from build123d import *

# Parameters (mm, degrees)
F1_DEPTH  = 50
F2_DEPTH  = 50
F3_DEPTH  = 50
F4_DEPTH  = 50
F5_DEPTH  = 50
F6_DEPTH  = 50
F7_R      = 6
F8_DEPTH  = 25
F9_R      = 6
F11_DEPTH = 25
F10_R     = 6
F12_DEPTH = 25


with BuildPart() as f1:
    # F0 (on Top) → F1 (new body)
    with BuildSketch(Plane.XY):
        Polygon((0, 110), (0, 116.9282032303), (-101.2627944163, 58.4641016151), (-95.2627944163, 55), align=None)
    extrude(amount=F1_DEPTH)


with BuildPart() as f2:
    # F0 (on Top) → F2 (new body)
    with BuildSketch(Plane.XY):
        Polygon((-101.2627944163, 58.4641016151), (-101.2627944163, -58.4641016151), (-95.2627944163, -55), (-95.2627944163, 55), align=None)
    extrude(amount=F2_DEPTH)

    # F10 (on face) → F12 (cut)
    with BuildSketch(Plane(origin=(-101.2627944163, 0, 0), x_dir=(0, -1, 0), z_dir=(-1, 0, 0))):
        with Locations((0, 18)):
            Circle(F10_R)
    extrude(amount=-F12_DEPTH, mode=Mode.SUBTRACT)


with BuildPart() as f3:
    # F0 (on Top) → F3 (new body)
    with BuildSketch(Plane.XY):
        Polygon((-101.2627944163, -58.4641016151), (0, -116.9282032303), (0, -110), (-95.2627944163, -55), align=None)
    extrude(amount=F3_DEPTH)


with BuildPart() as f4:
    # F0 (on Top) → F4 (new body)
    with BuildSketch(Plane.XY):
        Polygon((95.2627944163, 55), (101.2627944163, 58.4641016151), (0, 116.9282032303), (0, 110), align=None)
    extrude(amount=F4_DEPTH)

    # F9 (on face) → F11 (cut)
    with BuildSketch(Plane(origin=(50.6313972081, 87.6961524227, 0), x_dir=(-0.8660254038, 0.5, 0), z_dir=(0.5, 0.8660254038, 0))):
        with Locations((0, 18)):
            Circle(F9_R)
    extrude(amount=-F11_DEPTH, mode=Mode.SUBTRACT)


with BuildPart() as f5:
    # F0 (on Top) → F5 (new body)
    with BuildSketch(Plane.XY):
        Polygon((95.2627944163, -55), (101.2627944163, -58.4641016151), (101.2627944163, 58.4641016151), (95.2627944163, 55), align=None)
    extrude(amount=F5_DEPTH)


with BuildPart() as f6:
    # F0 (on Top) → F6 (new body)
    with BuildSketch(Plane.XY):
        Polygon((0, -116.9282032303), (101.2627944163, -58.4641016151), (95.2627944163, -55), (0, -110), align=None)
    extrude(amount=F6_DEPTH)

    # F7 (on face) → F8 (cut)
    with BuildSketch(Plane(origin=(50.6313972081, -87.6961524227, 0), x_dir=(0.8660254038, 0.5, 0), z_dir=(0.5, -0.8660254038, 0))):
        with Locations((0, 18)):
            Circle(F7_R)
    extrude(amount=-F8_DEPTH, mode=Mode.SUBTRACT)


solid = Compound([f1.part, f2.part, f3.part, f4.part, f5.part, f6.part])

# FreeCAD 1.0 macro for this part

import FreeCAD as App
import Part
import Sketcher
from FreeCAD import Vector
Q = App.Units.Quantity

doc = App.newDocument("Part")
params = doc.addObject("Spreadsheet::Sheet", "Params")
for row, (alias, value) in enumerate([
    ("sketch1_length", "110 mm"),
    ("pad1_length", "50 mm"),
    ("sketch2_height", "110 mm"),
    ("pad2_length", "50 mm"),
    ("sketch3_diameter", "12 mm"),
    ("pocket1_length", "25 mm"),
    ("sketch4_length", "110 mm"),
    ("pad3_length", "50 mm"),
    ("sketch5_length", "110 mm"),
    ("pad4_length", "50 mm"),
    ("sketch6_diameter", "12 mm"),
    ("pocket2_length", "25 mm"),
    ("sketch7_height", "110 mm"),
    ("pad5_length", "50 mm"),
    ("sketch8_length", "110 mm"),
    ("pad6_length", "50 mm"),
    ("sketch9_diameter", "12 mm"),
    ("pocket3_length", "25 mm"),
], start=1):
    params.set(f"A{row}", alias)
    params.set(f"B{row}", "=" + value)
    params.setAlias(f"B{row}", alias)

body = doc.addObject("PartDesign::Body", "Body")

# Sketch on XY plane
sketch1 = body.newObject("Sketcher::SketchObject", "Sketch")
sketch1.AttachmentSupport = (doc.getObject("XY_Plane"), [""])
sketch1.MapMode = "FlatFace"
sketch1.addGeometry(Part.LineSegment(Vector(0, 110, 0), Vector(0, 117, 0)), False)
sketch1.addGeometry(Part.LineSegment(Vector(0, 117, 0), Vector(-101, 58, 0)), False)
sketch1.addGeometry(Part.LineSegment(Vector(-101, 58, 0), Vector(-95, 55, 0)), False)
sketch1.addGeometry(Part.LineSegment(Vector(-95, 55, 0), Vector(0, 110, 0)), False)
sketch1.addConstraint(Sketcher.Constraint("Coincident", 0, 2, 1, 1))
sketch1.addConstraint(Sketcher.Constraint("Coincident", 1, 2, 2, 1))
sketch1.addConstraint(Sketcher.Constraint("Coincident", 2, 2, 3, 1))
sketch1.addConstraint(Sketcher.Constraint("Coincident", 3, 2, 0, 1))
sketch1.addConstraint(Sketcher.Constraint("Vertical", 0))
sketch1.addConstraint(Sketcher.Constraint("PointOnObject", 0, 2, -2))
sketch1.addConstraint(Sketcher.Constraint("Parallel", 1, 3))
sketch1.addConstraint(Sketcher.Constraint("Angle", 1, Q("-150 deg")))
sketch1.addConstraint(Sketcher.Constraint("Angle", 2, Q("-30 deg")))
sketch1.addConstraint(Sketcher.Constraint("Distance", 3, Q("110 mm")))
sketch1.addConstraint(Sketcher.Constraint("DistanceY", -1, 1, 2, 2, Q("55 mm")))
sketch1.addConstraint(Sketcher.Constraint("DistanceX", 1, 2, 2, 2, Q("6 mm")))
sketch1.setExpression("Constraints[9]", "Params.sketch1_length")
pad1 = body.newObject("PartDesign::Pad", "Pad")
pad1.Profile = sketch1
pad1.setExpression("Length", "Params.pad1_length")
body2 = doc.addObject("PartDesign::Body", "Body001")

# Sketch on XY plane
sketch2 = body2.newObject("Sketcher::SketchObject", "Sketch001")
sketch2.AttachmentSupport = (doc.getObject("XY_Plane001"), [""])
sketch2.MapMode = "FlatFace"
sketch2.addGeometry(Part.LineSegment(Vector(-101, 58, 0), Vector(-101, -58, 0)), False)
sketch2.addGeometry(Part.LineSegment(Vector(-101, -58, 0), Vector(-95, -55, 0)), False)
sketch2.addGeometry(Part.LineSegment(Vector(-95, -55, 0), Vector(-95, 55, 0)), False)
sketch2.addGeometry(Part.LineSegment(Vector(-95, 55, 0), Vector(-101, 58, 0)), False)
sketch2.addConstraint(Sketcher.Constraint("Coincident", 0, 2, 1, 1))
sketch2.addConstraint(Sketcher.Constraint("Coincident", 1, 2, 2, 1))
sketch2.addConstraint(Sketcher.Constraint("Coincident", 2, 2, 3, 1))
sketch2.addConstraint(Sketcher.Constraint("Coincident", 3, 2, 0, 1))
sketch2.addConstraint(Sketcher.Constraint("Vertical", 0))
sketch2.addConstraint(Sketcher.Constraint("Vertical", 2))
sketch2.addConstraint(Sketcher.Constraint("Equal", 1, 3))
sketch2.addConstraint(Sketcher.Constraint("DistanceY", 2, 1, 2, 2, Q("110 mm")))
sketch2.addConstraint(Sketcher.Constraint("Angle", 1, Q("30 deg")))
sketch2.addConstraint(Sketcher.Constraint("DistanceY", 1, 2, -1, 1, Q("55 mm")))
sketch2.addConstraint(Sketcher.Constraint("DistanceX", 0, 2, 1, 2, Q("6 mm")))
sketch2.addConstraint(Sketcher.Constraint("DistanceX", 0, 2, -1, 1, Q("101.262794 mm")))
sketch2.setExpression("Constraints[7]", "Params.sketch2_height")
pad2 = body2.newObject("PartDesign::Pad", "Pad001")
pad2.Profile = sketch2
pad2.setExpression("Length", "Params.pad2_length")

# Sketch on YZ plane
sketch3 = body2.newObject("Sketcher::SketchObject", "Sketch002")
sketch3.AttachmentSupport = (doc.getObject("YZ_Plane001"), [""])
sketch3.MapMode = "FlatFace"
sketch3.AttachmentOffset = App.Placement(Vector(0, 0, -101.262794), App.Rotation())
sketch3.addGeometry(Part.Circle(Vector(0, 18, 0), Vector(0, 0, 1), 6), False)
sketch3.addConstraint(Sketcher.Constraint("PointOnObject", 0, 3, -2))
sketch3.addConstraint(Sketcher.Constraint("Diameter", 0, Q("12 mm")))
sketch3.addConstraint(Sketcher.Constraint("DistanceY", -1, 1, 0, 3, Q("18 mm")))
sketch3.setExpression("Constraints[1]", "Params.sketch3_diameter")
pocket1 = body2.newObject("PartDesign::Pocket", "Pocket")
pocket1.Profile = sketch3
pocket1.setExpression("Length", "Params.pocket1_length")
pocket1.Reversed = True
body3 = doc.addObject("PartDesign::Body", "Body002")

# Sketch on XY plane
sketch4 = body3.newObject("Sketcher::SketchObject", "Sketch003")
sketch4.AttachmentSupport = (doc.getObject("XY_Plane002"), [""])
sketch4.MapMode = "FlatFace"
sketch4.addGeometry(Part.LineSegment(Vector(-101, -58, 0), Vector(0, -117, 0)), False)
sketch4.addGeometry(Part.LineSegment(Vector(0, -117, 0), Vector(0, -110, 0)), False)
sketch4.addGeometry(Part.LineSegment(Vector(0, -110, 0), Vector(-95, -55, 0)), False)
sketch4.addGeometry(Part.LineSegment(Vector(-95, -55, 0), Vector(-101, -58, 0)), False)
sketch4.addConstraint(Sketcher.Constraint("Coincident", 0, 2, 1, 1))
sketch4.addConstraint(Sketcher.Constraint("Coincident", 1, 2, 2, 1))
sketch4.addConstraint(Sketcher.Constraint("Coincident", 2, 2, 3, 1))
sketch4.addConstraint(Sketcher.Constraint("Coincident", 3, 2, 0, 1))
sketch4.addConstraint(Sketcher.Constraint("Vertical", 1))
sketch4.addConstraint(Sketcher.Constraint("PointOnObject", 0, 2, -2))
sketch4.addConstraint(Sketcher.Constraint("Parallel", 0, 2))
sketch4.addConstraint(Sketcher.Constraint("Angle", 0, Q("-30 deg")))
sketch4.addConstraint(Sketcher.Constraint("Angle", 3, Q("-150 deg")))
sketch4.addConstraint(Sketcher.Constraint("Distance", 2, Q("110 mm")))
sketch4.addConstraint(Sketcher.Constraint("DistanceY", 1, 2, -1, 1, Q("110 mm")))
sketch4.addConstraint(Sketcher.Constraint("DistanceX", 3, 2, 2, 2, Q("6 mm")))
sketch4.setExpression("Constraints[9]", "Params.sketch4_length")
pad3 = body3.newObject("PartDesign::Pad", "Pad002")
pad3.Profile = sketch4
pad3.setExpression("Length", "Params.pad3_length")
body4 = doc.addObject("PartDesign::Body", "Body003")

# Sketch on XY plane
sketch5 = body4.newObject("Sketcher::SketchObject", "Sketch004")
sketch5.AttachmentSupport = (doc.getObject("XY_Plane003"), [""])
sketch5.MapMode = "FlatFace"
sketch5.addGeometry(Part.LineSegment(Vector(95, 55, 0), Vector(101, 58, 0)), False)
sketch5.addGeometry(Part.LineSegment(Vector(101, 58, 0), Vector(0, 117, 0)), False)
sketch5.addGeometry(Part.LineSegment(Vector(0, 117, 0), Vector(0, 110, 0)), False)
sketch5.addGeometry(Part.LineSegment(Vector(0, 110, 0), Vector(95, 55, 0)), False)
sketch5.addConstraint(Sketcher.Constraint("Coincident", 0, 2, 1, 1))
sketch5.addConstraint(Sketcher.Constraint("Coincident", 1, 2, 2, 1))
sketch5.addConstraint(Sketcher.Constraint("Coincident", 2, 2, 3, 1))
sketch5.addConstraint(Sketcher.Constraint("Coincident", 3, 2, 0, 1))
sketch5.addConstraint(Sketcher.Constraint("Vertical", 2))
sketch5.addConstraint(Sketcher.Constraint("PointOnObject", 1, 2, -2))
sketch5.addConstraint(Sketcher.Constraint("Parallel", 1, 3))
sketch5.addConstraint(Sketcher.Constraint("Angle", 0, Q("30 deg")))
sketch5.addConstraint(Sketcher.Constraint("Angle", 1, Q("150 deg")))
sketch5.addConstraint(Sketcher.Constraint("Distance", 3, Q("110 mm")))
sketch5.addConstraint(Sketcher.Constraint("DistanceY", -1, 1, 2, 2, Q("110 mm")))
sketch5.addConstraint(Sketcher.Constraint("DistanceX", 3, 2, 0, 2, Q("6 mm")))
sketch5.setExpression("Constraints[9]", "Params.sketch5_length")
pad4 = body4.newObject("PartDesign::Pad", "Pad003")
pad4.Profile = sketch5
pad4.setExpression("Length", "Params.pad4_length")

# Sketch on an angled plane
sketch6 = body4.newObject("Sketcher::SketchObject", "Sketch005")
sketch6.Placement = App.Placement(Vector(50.631397, 87.696152, 0), App.Rotation(Vector(-0.866025404, 0.5, 0), Vector(0, 0, 1), Vector(0.5, 0.866025404, 0), "ZXY"))
sketch6.addGeometry(Part.Circle(Vector(0, 18, 0), Vector(0, 0, 1), 6), False)
sketch6.addConstraint(Sketcher.Constraint("PointOnObject", 0, 3, -2))
sketch6.addConstraint(Sketcher.Constraint("Diameter", 0, Q("12 mm")))
sketch6.addConstraint(Sketcher.Constraint("DistanceY", -1, 1, 0, 3, Q("18 mm")))
sketch6.setExpression("Constraints[1]", "Params.sketch6_diameter")
pocket2 = body4.newObject("PartDesign::Pocket", "Pocket001")
pocket2.Profile = sketch6
pocket2.setExpression("Length", "Params.pocket2_length")
body5 = doc.addObject("PartDesign::Body", "Body004")

# Sketch on XY plane
sketch7 = body5.newObject("Sketcher::SketchObject", "Sketch006")
sketch7.AttachmentSupport = (doc.getObject("XY_Plane004"), [""])
sketch7.MapMode = "FlatFace"
sketch7.addGeometry(Part.LineSegment(Vector(95, -55, 0), Vector(101, -58, 0)), False)
sketch7.addGeometry(Part.LineSegment(Vector(101, -58, 0), Vector(101, 58, 0)), False)
sketch7.addGeometry(Part.LineSegment(Vector(101, 58, 0), Vector(95, 55, 0)), False)
sketch7.addGeometry(Part.LineSegment(Vector(95, 55, 0), Vector(95, -55, 0)), False)
sketch7.addConstraint(Sketcher.Constraint("Coincident", 0, 2, 1, 1))
sketch7.addConstraint(Sketcher.Constraint("Coincident", 1, 2, 2, 1))
sketch7.addConstraint(Sketcher.Constraint("Coincident", 2, 2, 3, 1))
sketch7.addConstraint(Sketcher.Constraint("Coincident", 3, 2, 0, 1))
sketch7.addConstraint(Sketcher.Constraint("Vertical", 1))
sketch7.addConstraint(Sketcher.Constraint("Vertical", 3))
sketch7.addConstraint(Sketcher.Constraint("Equal", 0, 2))
sketch7.addConstraint(Sketcher.Constraint("DistanceY", 3, 2, 3, 1, Q("110 mm")))
sketch7.addConstraint(Sketcher.Constraint("Angle", 0, Q("-30 deg")))
sketch7.addConstraint(Sketcher.Constraint("DistanceY", -1, 1, 2, 2, Q("55 mm")))
sketch7.addConstraint(Sketcher.Constraint("DistanceX", 2, 2, 1, 2, Q("6 mm")))
sketch7.addConstraint(Sketcher.Constraint("DistanceX", -1, 1, 0, 2, Q("101.262794 mm")))
sketch7.setExpression("Constraints[7]", "Params.sketch7_height")
pad5 = body5.newObject("PartDesign::Pad", "Pad004")
pad5.Profile = sketch7
pad5.setExpression("Length", "Params.pad5_length")
body6 = doc.addObject("PartDesign::Body", "Body005")

# Sketch on XY plane
sketch8 = body6.newObject("Sketcher::SketchObject", "Sketch007")
sketch8.AttachmentSupport = (doc.getObject("XY_Plane005"), [""])
sketch8.MapMode = "FlatFace"
sketch8.addGeometry(Part.LineSegment(Vector(0, -117, 0), Vector(101, -58, 0)), False)
sketch8.addGeometry(Part.LineSegment(Vector(101, -58, 0), Vector(95, -55, 0)), False)
sketch8.addGeometry(Part.LineSegment(Vector(95, -55, 0), Vector(0, -110, 0)), False)
sketch8.addGeometry(Part.LineSegment(Vector(0, -110, 0), Vector(0, -117, 0)), False)
sketch8.addConstraint(Sketcher.Constraint("Coincident", 0, 2, 1, 1))
sketch8.addConstraint(Sketcher.Constraint("Coincident", 1, 2, 2, 1))
sketch8.addConstraint(Sketcher.Constraint("Coincident", 2, 2, 3, 1))
sketch8.addConstraint(Sketcher.Constraint("Coincident", 3, 2, 0, 1))
sketch8.addConstraint(Sketcher.Constraint("Vertical", 3))
sketch8.addConstraint(Sketcher.Constraint("PointOnObject", 2, 2, -2))
sketch8.addConstraint(Sketcher.Constraint("Parallel", 0, 2))
sketch8.addConstraint(Sketcher.Constraint("Angle", 0, Q("30 deg")))
sketch8.addConstraint(Sketcher.Constraint("Angle", 1, Q("150 deg")))
sketch8.addConstraint(Sketcher.Constraint("Distance", 2, Q("110 mm")))
sketch8.addConstraint(Sketcher.Constraint("DistanceY", 1, 2, -1, 1, Q("55 mm")))
sketch8.addConstraint(Sketcher.Constraint("DistanceX", 1, 2, 0, 2, Q("6 mm")))
sketch8.setExpression("Constraints[9]", "Params.sketch8_length")
pad6 = body6.newObject("PartDesign::Pad", "Pad005")
pad6.Profile = sketch8
pad6.setExpression("Length", "Params.pad6_length")

# Sketch on an angled plane
sketch9 = body6.newObject("Sketcher::SketchObject", "Sketch008")
sketch9.Placement = App.Placement(Vector(50.631397, -87.696152, 0), App.Rotation(Vector(0.866025404, 0.5, 0), Vector(0, 0, 1), Vector(0.5, -0.866025404, 0), "ZXY"))
sketch9.addGeometry(Part.Circle(Vector(0, 18, 0), Vector(0, 0, 1), 6), False)
sketch9.addConstraint(Sketcher.Constraint("PointOnObject", 0, 3, -2))
sketch9.addConstraint(Sketcher.Constraint("Diameter", 0, Q("12 mm")))
sketch9.addConstraint(Sketcher.Constraint("DistanceY", -1, 1, 0, 3, Q("18 mm")))
sketch9.setExpression("Constraints[1]", "Params.sketch9_diameter")
pocket3 = body6.newObject("PartDesign::Pocket", "Pocket002")
pocket3.Profile = sketch9
pocket3.setExpression("Length", "Params.pocket3_length")

doc.recompute()
